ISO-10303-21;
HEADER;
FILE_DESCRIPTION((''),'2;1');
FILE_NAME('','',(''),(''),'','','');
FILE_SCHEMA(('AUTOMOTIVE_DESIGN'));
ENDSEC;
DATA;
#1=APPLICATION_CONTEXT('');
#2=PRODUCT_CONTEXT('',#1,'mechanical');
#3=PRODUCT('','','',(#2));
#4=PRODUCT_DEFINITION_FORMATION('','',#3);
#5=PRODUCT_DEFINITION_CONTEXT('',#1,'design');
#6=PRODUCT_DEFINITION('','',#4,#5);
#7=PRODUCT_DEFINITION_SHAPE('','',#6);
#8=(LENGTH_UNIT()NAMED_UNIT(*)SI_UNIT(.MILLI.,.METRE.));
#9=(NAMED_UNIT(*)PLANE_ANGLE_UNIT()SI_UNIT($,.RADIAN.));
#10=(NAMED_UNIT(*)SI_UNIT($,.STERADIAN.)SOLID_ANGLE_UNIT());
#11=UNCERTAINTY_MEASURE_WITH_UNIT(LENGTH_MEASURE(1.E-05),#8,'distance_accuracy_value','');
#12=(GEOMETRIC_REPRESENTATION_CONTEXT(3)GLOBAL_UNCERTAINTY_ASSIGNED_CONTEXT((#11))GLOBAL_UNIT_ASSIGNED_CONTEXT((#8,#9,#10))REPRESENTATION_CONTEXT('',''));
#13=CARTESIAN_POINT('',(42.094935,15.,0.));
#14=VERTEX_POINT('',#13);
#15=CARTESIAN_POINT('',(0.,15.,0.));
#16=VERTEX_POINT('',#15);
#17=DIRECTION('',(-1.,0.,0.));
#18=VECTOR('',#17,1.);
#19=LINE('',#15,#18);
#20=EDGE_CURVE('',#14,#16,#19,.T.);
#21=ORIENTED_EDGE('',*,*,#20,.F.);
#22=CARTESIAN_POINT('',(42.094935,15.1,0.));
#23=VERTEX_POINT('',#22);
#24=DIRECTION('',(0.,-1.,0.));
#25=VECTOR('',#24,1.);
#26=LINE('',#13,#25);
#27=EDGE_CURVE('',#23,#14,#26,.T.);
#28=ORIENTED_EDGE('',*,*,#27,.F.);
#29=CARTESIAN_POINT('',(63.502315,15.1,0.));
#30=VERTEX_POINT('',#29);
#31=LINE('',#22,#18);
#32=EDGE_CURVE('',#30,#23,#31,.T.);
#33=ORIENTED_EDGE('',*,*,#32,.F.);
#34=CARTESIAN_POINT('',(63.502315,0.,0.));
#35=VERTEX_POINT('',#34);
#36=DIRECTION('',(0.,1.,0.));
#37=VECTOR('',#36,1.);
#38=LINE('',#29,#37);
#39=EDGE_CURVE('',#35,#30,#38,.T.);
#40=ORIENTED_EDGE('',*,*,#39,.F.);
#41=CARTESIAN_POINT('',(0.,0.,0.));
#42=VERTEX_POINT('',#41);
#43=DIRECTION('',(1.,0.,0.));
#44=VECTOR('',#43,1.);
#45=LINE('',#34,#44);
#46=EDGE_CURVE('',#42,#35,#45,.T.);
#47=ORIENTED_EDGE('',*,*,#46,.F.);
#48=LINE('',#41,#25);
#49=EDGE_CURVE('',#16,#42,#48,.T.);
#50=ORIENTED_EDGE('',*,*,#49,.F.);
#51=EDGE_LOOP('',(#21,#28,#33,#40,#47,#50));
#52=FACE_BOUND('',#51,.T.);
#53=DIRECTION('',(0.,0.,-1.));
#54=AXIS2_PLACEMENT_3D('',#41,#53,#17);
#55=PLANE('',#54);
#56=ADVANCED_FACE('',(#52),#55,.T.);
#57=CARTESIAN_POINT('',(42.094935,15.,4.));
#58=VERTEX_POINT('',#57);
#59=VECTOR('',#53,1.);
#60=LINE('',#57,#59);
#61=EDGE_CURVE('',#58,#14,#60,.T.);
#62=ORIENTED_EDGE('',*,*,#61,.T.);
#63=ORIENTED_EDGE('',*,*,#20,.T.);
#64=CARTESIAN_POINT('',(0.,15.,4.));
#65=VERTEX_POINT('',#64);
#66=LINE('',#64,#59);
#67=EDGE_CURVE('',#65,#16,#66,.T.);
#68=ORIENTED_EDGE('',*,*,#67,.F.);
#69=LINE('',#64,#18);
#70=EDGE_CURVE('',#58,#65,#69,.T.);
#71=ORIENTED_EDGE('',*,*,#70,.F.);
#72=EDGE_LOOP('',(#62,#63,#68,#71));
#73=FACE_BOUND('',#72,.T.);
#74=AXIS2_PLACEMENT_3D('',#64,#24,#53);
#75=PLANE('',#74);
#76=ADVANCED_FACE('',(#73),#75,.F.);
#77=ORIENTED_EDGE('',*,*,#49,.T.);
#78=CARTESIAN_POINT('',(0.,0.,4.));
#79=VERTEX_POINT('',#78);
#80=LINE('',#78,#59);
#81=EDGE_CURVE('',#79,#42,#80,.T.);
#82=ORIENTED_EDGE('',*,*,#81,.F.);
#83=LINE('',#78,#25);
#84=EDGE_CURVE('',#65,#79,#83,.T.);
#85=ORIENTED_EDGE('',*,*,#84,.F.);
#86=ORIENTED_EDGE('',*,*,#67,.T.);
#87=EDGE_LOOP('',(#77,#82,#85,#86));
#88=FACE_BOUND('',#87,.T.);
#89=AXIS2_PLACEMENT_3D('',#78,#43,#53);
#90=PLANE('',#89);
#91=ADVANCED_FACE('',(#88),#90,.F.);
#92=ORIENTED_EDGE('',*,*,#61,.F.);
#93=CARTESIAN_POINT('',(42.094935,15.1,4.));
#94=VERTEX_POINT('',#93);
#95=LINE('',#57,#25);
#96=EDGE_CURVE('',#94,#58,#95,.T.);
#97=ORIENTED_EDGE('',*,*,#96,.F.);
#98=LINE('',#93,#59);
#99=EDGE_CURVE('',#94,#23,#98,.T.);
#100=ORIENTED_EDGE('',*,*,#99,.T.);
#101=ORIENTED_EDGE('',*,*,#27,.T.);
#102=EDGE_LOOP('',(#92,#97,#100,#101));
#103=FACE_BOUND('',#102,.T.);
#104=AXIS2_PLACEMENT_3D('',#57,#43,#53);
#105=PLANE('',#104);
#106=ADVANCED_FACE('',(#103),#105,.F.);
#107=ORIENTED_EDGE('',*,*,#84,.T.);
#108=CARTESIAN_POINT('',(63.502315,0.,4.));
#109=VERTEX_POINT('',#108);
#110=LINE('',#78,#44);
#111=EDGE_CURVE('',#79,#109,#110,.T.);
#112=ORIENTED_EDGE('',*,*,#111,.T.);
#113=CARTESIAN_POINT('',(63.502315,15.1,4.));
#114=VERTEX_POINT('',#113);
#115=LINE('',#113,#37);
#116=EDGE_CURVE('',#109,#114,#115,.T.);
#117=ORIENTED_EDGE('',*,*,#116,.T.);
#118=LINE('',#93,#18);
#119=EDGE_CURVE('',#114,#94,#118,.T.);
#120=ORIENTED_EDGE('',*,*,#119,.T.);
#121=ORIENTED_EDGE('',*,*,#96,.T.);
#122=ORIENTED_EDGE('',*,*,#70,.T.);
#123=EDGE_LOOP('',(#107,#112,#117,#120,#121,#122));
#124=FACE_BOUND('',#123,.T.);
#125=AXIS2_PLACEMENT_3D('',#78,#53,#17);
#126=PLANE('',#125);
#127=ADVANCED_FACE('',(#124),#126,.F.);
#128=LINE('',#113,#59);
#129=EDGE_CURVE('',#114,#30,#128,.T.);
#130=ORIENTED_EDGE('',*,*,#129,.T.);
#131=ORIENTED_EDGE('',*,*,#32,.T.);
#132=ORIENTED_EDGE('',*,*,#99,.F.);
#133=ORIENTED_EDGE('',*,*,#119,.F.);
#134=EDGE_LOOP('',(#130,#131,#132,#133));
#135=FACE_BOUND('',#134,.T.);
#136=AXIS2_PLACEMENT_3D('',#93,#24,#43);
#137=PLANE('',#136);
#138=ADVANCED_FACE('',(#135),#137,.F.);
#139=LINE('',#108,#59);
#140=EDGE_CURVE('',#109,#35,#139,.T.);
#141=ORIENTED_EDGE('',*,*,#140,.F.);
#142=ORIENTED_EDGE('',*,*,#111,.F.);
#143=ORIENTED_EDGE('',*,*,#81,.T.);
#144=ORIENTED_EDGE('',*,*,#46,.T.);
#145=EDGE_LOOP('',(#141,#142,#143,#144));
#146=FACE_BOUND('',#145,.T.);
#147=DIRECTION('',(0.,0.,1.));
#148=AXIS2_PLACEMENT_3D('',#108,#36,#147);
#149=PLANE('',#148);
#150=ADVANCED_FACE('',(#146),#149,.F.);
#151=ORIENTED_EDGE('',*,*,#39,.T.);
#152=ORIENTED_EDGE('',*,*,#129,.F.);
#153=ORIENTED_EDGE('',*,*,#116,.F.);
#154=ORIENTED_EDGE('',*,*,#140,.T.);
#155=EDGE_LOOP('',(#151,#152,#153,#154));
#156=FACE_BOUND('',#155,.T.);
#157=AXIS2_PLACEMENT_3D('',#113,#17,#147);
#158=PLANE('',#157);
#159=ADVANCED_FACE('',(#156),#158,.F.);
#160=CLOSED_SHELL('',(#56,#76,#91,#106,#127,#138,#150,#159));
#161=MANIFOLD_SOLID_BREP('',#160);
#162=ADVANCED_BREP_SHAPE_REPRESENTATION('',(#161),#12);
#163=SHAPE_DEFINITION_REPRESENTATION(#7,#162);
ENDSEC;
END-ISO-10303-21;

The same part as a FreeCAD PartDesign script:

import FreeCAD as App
import Part
import Sketcher
Q = App.Units.Quantity


def add_polygon(sketch, points):
    """Adds a closed chain of lines whose ends are joined by coincident constraints."""
    first, n = sketch.GeometryCount, len(points)
    for a, b in zip(points, points[1:] + points[:1]):
        sketch.addGeometry(Part.LineSegment(App.Vector(*a, 0), App.Vector(*b, 0)), False)
    for i in range(n):
        sketch.addConstraint(Sketcher.Constraint("Coincident", first + i, 2, first + (i + 1) % n, 1))

doc = App.newDocument("Part")
params = doc.addObject("Spreadsheet::Sheet", "Params")
for row, (alias, value) in enumerate([
    ("sketch1_height", "15 mm"),
    ("sketch1_height2", "0.1 mm"),
    ("pad1_length", "4 mm"),
], start=1):
    params.set(f"A{row}", alias)
    params.set(f"B{row}", "=" + value)
    params.setAlias(f"B{row}", alias)

body = doc.addObject("PartDesign::Body", "Body")

sketch1 = doc.addObject("Sketcher::SketchObject", "Sketch")
body.addObject(sketch1)
sketch1.AttachmentSupport = (doc.XY_Plane, [""])
sketch1.MapMode = "FlatFace"
add_polygon(sketch1, [(42.09, 15.1), (42.09, 15), (0, 15), (0, 0), (63.5, 0), (63.5, 15.1)])
sketch1.addConstraint([
    Sketcher.Constraint("Vertical", 0),
    Sketcher.Constraint("Horizontal", 1),
    Sketcher.Constraint("Vertical", 2),
    Sketcher.Constraint("Horizontal", 3),
    Sketcher.Constraint("Vertical", 4),
    Sketcher.Constraint("Horizontal", 5),
    Sketcher.Constraint("Coincident", 2, 2, -1, 1),
    Sketcher.Constraint("DistanceY", 2, 2, 2, 1, Q("15 mm")),
    Sketcher.Constraint("DistanceY", 0, 2, 0, 1, Q("0.1 mm")),
    Sketcher.Constraint("DistanceX", 5, 2, 5, 1, Q("21.40738 mm")),
    Sketcher.Constraint("DistanceX", 1, 2, 1, 1, Q("42.094935 mm")),
])
sketch1.setExpression("Constraints[13]", "Params.sketch1_height")
sketch1.setExpression("Constraints[14]", "Params.sketch1_height2")
pad1 = doc.addObject("PartDesign::Pad", "Pad")
body.addObject(pad1)
pad1.Profile = sketch1
pad1.setExpression("Length", "Params.pad1_length")

doc.recompute()
